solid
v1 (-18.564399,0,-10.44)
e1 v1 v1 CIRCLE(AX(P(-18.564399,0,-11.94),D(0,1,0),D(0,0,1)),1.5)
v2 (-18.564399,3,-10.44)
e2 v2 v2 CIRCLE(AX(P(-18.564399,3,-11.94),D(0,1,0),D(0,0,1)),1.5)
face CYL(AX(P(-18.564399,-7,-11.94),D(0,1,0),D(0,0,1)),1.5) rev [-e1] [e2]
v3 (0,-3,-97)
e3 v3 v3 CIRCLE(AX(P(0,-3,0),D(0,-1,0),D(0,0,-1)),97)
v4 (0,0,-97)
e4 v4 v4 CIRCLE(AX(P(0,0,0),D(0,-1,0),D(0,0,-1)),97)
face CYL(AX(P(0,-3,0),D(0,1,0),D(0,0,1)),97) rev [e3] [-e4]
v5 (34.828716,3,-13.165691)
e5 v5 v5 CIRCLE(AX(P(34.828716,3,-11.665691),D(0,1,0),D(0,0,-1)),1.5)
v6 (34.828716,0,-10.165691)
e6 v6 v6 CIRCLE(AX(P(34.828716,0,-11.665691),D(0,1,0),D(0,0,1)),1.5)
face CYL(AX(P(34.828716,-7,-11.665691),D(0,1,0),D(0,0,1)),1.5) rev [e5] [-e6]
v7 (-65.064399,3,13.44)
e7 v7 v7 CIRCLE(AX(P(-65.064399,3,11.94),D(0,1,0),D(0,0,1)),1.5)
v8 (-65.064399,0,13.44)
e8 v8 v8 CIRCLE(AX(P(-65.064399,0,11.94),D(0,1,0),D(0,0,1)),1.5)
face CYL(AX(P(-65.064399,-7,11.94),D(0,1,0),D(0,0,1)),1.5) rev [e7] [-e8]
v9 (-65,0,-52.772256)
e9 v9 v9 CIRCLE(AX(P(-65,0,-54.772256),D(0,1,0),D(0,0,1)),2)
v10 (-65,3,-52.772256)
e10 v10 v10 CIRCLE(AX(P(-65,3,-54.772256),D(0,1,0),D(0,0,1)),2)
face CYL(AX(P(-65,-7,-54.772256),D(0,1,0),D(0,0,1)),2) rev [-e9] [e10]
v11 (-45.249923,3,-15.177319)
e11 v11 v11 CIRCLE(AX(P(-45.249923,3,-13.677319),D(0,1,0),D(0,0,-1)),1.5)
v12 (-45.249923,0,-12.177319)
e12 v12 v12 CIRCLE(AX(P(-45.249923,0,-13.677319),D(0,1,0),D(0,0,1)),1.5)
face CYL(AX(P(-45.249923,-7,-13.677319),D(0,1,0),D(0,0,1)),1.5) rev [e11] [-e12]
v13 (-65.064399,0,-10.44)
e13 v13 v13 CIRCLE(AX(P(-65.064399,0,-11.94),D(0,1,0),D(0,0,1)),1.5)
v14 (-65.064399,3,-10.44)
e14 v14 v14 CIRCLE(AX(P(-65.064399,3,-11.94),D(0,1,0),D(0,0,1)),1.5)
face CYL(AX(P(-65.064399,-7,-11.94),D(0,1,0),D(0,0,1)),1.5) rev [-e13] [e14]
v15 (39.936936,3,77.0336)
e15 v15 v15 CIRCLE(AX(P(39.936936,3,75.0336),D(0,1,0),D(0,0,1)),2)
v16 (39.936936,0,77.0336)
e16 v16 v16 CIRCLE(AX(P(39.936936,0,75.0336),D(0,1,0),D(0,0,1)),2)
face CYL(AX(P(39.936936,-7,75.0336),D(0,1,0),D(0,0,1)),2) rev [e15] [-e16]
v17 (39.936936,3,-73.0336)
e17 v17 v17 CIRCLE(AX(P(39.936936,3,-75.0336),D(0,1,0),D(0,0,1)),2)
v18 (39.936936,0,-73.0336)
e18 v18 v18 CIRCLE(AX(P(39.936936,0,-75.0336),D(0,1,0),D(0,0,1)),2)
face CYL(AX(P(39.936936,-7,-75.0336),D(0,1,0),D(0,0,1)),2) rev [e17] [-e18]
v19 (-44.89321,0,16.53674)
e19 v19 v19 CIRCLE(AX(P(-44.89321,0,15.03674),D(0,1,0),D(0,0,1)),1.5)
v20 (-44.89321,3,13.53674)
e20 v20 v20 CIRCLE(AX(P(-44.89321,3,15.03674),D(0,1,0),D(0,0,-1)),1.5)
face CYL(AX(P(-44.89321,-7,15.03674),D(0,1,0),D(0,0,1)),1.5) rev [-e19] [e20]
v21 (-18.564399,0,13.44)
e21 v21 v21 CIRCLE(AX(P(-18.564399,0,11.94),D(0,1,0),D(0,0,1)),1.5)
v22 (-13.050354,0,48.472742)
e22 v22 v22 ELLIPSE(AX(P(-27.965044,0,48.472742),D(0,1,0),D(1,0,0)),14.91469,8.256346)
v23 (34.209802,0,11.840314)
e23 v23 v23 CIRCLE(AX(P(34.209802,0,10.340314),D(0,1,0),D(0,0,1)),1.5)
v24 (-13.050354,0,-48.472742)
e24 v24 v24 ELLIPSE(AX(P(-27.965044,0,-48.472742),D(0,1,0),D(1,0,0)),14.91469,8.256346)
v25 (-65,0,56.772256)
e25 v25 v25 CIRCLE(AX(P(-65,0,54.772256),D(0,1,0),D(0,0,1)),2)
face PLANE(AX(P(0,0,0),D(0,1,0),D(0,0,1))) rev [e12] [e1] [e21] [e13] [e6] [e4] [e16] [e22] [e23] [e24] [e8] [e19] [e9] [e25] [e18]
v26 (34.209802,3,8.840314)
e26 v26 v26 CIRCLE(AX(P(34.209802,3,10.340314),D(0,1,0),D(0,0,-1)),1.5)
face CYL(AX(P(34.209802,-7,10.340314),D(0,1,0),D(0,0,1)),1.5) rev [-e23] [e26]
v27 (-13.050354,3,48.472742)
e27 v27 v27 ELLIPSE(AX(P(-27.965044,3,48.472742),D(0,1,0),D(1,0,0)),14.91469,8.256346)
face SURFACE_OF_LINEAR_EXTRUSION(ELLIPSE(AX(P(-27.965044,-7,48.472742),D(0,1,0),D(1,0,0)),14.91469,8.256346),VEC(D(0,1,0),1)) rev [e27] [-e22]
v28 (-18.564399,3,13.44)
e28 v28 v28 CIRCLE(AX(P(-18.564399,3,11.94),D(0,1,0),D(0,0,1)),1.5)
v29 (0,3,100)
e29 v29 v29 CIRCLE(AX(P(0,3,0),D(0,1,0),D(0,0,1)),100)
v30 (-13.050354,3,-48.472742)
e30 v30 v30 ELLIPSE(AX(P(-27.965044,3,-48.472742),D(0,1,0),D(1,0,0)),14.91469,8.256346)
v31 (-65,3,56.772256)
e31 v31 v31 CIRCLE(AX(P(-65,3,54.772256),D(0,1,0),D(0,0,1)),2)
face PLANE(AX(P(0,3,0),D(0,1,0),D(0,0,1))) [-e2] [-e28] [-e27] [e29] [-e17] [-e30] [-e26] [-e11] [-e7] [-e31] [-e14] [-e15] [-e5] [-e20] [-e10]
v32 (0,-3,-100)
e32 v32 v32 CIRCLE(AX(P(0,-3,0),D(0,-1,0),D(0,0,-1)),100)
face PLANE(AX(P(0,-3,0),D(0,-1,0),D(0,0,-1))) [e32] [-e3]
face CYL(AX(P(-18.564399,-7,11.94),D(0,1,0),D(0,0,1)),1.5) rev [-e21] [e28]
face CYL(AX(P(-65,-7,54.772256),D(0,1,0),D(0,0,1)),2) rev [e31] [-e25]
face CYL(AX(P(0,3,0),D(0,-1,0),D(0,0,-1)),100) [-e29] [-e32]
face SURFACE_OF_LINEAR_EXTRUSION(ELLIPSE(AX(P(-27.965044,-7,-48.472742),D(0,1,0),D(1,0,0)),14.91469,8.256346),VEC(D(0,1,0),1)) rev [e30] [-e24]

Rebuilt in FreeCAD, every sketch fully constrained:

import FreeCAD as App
import Part
import Sketcher

doc = App.newDocument("Part")
body = doc.addObject("PartDesign::Body", "Body")

# Sketch on XZ plane
sketch1 = doc.addObject("Sketcher::SketchObject", "Sketch")
body.addObject(sketch1)
sketch1.AttachmentSupport = (doc.XZ_Plane, [""])
sketch1.MapMode = "FlatFace"
sketch1.addGeometry(Part.Circle(App.Vector(0, 0, 0), App.Vector(0, 0, 1), 100), False)
sketch1.addConstraint(Sketcher.Constraint("Coincident", 0, 3, -1, 1))
sketch1.addConstraint(Sketcher.Constraint("Diameter", 0, 200.0))
pad1 = doc.addObject("PartDesign::Pad", "Pad")
body.addObject(pad1)
pad1.Profile = sketch1
pad1.Length = 3
pad1.Reversed = True

# Sketch on XZ plane
sketch2 = doc.addObject("Sketcher::SketchObject", "Sketch001")
body.addObject(sketch2)
sketch2.AttachmentSupport = (doc.XZ_Plane, [""])
sketch2.MapMode = "FlatFace"
sketch2.AttachmentOffset = App.Placement(App.Vector(0, 0, -3), App.Rotation())
sketch2.addGeometry(Part.Circle(App.Vector(39.9, 75, 0), App.Vector(0, 0, 1), 2), False)
sketch2.addGeometry(Part.Circle(App.Vector(39.9, -75, 0), App.Vector(0, 0, 1), 2), False)
sketch2.addGeometry(Part.Circle(App.Vector(-65, -54.8, 0), App.Vector(0, 0, 1), 2), False)
sketch2.addGeometry(Part.Circle(App.Vector(-65, 54.8, 0), App.Vector(0, 0, 1), 2), False)
sketch2.addConstraint(Sketcher.Constraint("Equal", 0, 1))
sketch2.addConstraint(Sketcher.Constraint("Equal", 1, 2))
sketch2.addConstraint(Sketcher.Constraint("Equal", 2, 3))
sketch2.addConstraint(Sketcher.Constraint("Symmetric", 0, 3, 1, 3, -1))
sketch2.addConstraint(Sketcher.Constraint("Symmetric", 2, 3, 3, 3, -1))
sketch2.addConstraint(Sketcher.Constraint("Diameter", 0, 4.0))
sketch2.addConstraint(Sketcher.Constraint("DistanceX", 2, 3, -1, 1, 65.0))
sketch2.addConstraint(Sketcher.Constraint("DistanceY", -1, 1, 0, 3, 75.0336))
sketch2.addConstraint(Sketcher.Constraint("DistanceY", 2, 3, 3, 3, 109.544512))
sketch2.addConstraint(Sketcher.Constraint("DistanceX", -1, 1, 0, 3, 39.936936))
pocket1 = doc.addObject("PartDesign::Pocket", "Pocket")
body.addObject(pocket1)
pocket1.Profile = sketch2
pocket1.Length = 10
pocket1.Reversed = True

# Sketch on XZ plane
sketch3 = doc.addObject("Sketcher::SketchObject", "Sketch002")
body.addObject(sketch3)
sketch3.AttachmentSupport = (doc.XZ_Plane, [""])
sketch3.MapMode = "FlatFace"
sketch3.AttachmentOffset = App.Placement(App.Vector(0, 0, -3), App.Rotation())
sketch3.addGeometry(Part.Circle(App.Vector(-65.1, -11.9, 0), App.Vector(0, 0, 1), 1.5), False)
sketch3.addGeometry(Part.Circle(App.Vector(-18.6, -11.9, 0), App.Vector(0, 0, 1), 1.5), False)
sketch3.addGeometry(Part.Circle(App.Vector(-18.6, 11.9, 0), App.Vector(0, 0, 1), 1.5), False)
sketch3.addGeometry(Part.Circle(App.Vector(-65.1, 11.9, 0), App.Vector(0, 0, 1), 1.5), False)
sketch3.addGeometry(Part.Circle(App.Vector(34.2, 10.3, 0), App.Vector(0, 0, 1), 1.5), False)
sketch3.addGeometry(Part.Circle(App.Vector(34.8, -11.7, 0), App.Vector(0, 0, 1), 1.5), False)
sketch3.addGeometry(Part.Circle(App.Vector(-45.2, -13.7, 0), App.Vector(0, 0, 1), 1.5), False)
sketch3.addGeometry(Part.Circle(App.Vector(-44.9, 15, 0), App.Vector(0, 0, 1), 1.5), False)
sketch3.addConstraint(Sketcher.Constraint("Equal", 0, 1))
sketch3.addConstraint(Sketcher.Constraint("Equal", 1, 2))
sketch3.addConstraint(Sketcher.Constraint("Equal", 2, 3))
sketch3.addConstraint(Sketcher.Constraint("Equal", 3, 4))
sketch3.addConstraint(Sketcher.Constraint("Equal", 4, 5))
sketch3.addConstraint(Sketcher.Constraint("Equal", 5, 6))
sketch3.addConstraint(Sketcher.Constraint("Equal", 6, 7))
sketch3.addConstraint(Sketcher.Constraint("Symmetric", 1, 3, 2, 3, -1))
sketch3.addConstraint(Sketcher.Constraint("Symmetric", 0, 3, 3, 3, -1))
sketch3.addConstraint(Sketcher.Constraint("Horizontal", 0, 3, 1, 3))
sketch3.addConstraint(Sketcher.Constraint("Diameter", 0, 3.0))
sketch3.addConstraint(Sketcher.Constraint("DistanceX", 0, 3, 1, 3, 46.5))
sketch3.addConstraint(Sketcher.Constraint("DistanceY", 0, 3, -1, 1, 11.94))
sketch3.addConstraint(Sketcher.Constraint("DistanceX", 0, 3, -1, 1, 65.064399))
sketch3.addConstraint(Sketcher.Constraint("DistanceX", 2, 3, 4, 3, 52.774201))
sketch3.addConstraint(Sketcher.Constraint("DistanceY", 5, 3, -1, 1, 11.665691))
sketch3.addConstraint(Sketcher.Constraint("DistanceY", 6, 3, -1, 1, 13.677319))
sketch3.addConstraint(Sketcher.Constraint("DistanceX", 7, 3, -1, 1, 44.89321))
sketch3.addConstraint(Sketcher.Constraint("DistanceY", -1, 1, 7, 3, 15.03674))
sketch3.addConstraint(Sketcher.Constraint("DistanceX", 6, 3, 5, 3, 80.078639))
sketch3.addConstraint(Sketcher.Constraint("DistanceY", -1, 1, 4, 3, 10.340314))
sketch3.addConstraint(Sketcher.Constraint("DistanceX", -1, 1, 5, 3, 34.828716))
pocket2 = doc.addObject("PartDesign::Pocket", "Pocket001")
body.addObject(pocket2)
pocket2.Profile = sketch3
pocket2.Length = 10
pocket2.Reversed = True

# Sketch on XZ plane
sketch4 = doc.addObject("Sketcher::SketchObject", "Sketch003")
body.addObject(sketch4)
sketch4.AttachmentSupport = (doc.XZ_Plane, [""])
sketch4.MapMode = "FlatFace"
sketch4.AttachmentOffset = App.Placement(App.Vector(0, 0, -3), App.Rotation())
sketch4.addGeometry(Part.Ellipse(App.Vector(-13.050354, -48.472742, 0), App.Vector(-27.965044, -40.216396, 0), App.Vector(-27.965044, -48.472742, 0)), False)
sketch4.addGeometry(Part.Ellipse(App.Vector(-13.050354, 48.472742, 0), App.Vector(-27.965044, 56.729089, 0), App.Vector(-27.965044, 48.472742, 0)), False)
sketch4.addConstraint(Sketcher.Constraint("Block", 0))
sketch4.addConstraint(Sketcher.Constraint("Block", 1))
pocket3 = doc.addObject("PartDesign::Pocket", "Pocket002")
body.addObject(pocket3)
pocket3.Profile = sketch4
pocket3.Length = 10
pocket3.Reversed = True

# Sketch on XZ plane
sketch5 = doc.addObject("Sketcher::SketchObject", "Sketch004")
body.addObject(sketch5)
sketch5.AttachmentSupport = (doc.XZ_Plane, [""])
sketch5.MapMode = "FlatFace"
sketch5.AttachmentOffset = App.Placement(App.Vector(0, 0, 3), App.Rotation())
sketch5.addGeometry(Part.Circle(App.Vector(0, 0, 0), App.Vector(0, 0, 1), 100), False)
sketch5.addGeometry(Part.Circle(App.Vector(0, 0, 0), App.Vector(0, 0, 1), 97), False)
sketch5.addConstraint(Sketcher.Constraint("Coincident", 0, 3, -1, 1))
sketch5.addConstraint(Sketcher.Constraint("Coincident", 1, 3, -1, 1))
sketch5.addConstraint(Sketcher.Constraint("Diameter", 0, 200.0))
sketch5.addConstraint(Sketcher.Constraint("Diameter", 1, 194.0))
pad2 = doc.addObject("PartDesign::Pad", "Pad001")
body.addObject(pad2)
pad2.Profile = sketch5
pad2.Length = 3
pad2.Reversed = True

doc.recompute()
